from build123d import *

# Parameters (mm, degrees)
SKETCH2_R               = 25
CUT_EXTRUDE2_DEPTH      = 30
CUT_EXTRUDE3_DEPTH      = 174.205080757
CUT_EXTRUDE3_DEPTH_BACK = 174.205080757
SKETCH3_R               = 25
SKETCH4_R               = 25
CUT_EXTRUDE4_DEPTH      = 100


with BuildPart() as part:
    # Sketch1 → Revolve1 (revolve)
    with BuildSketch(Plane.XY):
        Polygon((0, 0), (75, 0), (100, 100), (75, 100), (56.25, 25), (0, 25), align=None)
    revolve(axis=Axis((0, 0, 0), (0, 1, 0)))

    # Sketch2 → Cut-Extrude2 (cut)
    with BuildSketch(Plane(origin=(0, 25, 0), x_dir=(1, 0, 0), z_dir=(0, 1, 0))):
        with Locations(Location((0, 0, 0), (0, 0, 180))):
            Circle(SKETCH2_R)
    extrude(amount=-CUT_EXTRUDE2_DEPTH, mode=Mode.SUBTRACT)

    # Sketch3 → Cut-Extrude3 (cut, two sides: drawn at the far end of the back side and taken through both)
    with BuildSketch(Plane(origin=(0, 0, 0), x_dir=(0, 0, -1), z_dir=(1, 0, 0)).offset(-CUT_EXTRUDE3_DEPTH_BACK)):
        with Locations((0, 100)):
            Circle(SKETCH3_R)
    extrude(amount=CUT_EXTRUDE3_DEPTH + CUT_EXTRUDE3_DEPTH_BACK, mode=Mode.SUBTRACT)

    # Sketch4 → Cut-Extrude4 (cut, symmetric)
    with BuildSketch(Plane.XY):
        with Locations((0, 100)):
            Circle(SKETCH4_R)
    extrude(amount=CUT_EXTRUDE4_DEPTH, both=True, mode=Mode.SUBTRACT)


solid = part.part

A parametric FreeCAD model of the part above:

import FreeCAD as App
import Part
import Sketcher


def add_polygon(sketch, points):
    """Adds a closed chain of lines whose ends are joined by coincident constraints."""
    first, n = sketch.GeometryCount, len(points)
    for a, b in zip(points, points[1:] + points[:1]):
        sketch.addGeometry(Part.LineSegment(App.Vector(*a, 0), App.Vector(*b, 0)), False)
    for i in range(n):
        sketch.addConstraint(Sketcher.Constraint("Coincident", first + i, 2, first + (i + 1) % n, 1))

doc = App.newDocument("Part")
body = doc.addObject("PartDesign::Body", "Body")

sketch1 = body.newObject("Sketcher::SketchObject", "Sketch")
sketch1.AttachmentSupport = (doc.getObject("XY_Plane"), [""])
sketch1.MapMode = "FlatFace"
add_polygon(sketch1, [(0, 0), (75, 0), (100, 100), (75, 100), (56, 25), (0, 25)])
sketch1.addConstraint([
    Sketcher.Constraint("Horizontal", 0),
    Sketcher.Constraint("Horizontal", 2),
    Sketcher.Constraint("Horizontal", 4),
    Sketcher.Constraint("Vertical", 5),
    Sketcher.Constraint("Coincident", 5, 2, -1, 1),
    Sketcher.Constraint("Parallel", 1, 3),
    Sketcher.Constraint("Vertical", 0, 2, 2, 2),
    Sketcher.Constraint("Equal", 2, 5),
    Sketcher.Constraint("DistanceX", 0, 1, 0, 2, 75.0),
    Sketcher.Constraint("DistanceX", 2, 2, 2, 1, 25.0),
    Sketcher.Constraint("DistanceY", -1, 1, 1, 2, 100.0),
])
revolution = body.newObject("PartDesign::Revolution", "Revolution")
revolution.Profile = sketch1
revolution.ReferenceAxis = (sketch1, ["V_Axis"])
revolution.Angle = 360

sketch2 = body.newObject("Sketcher::SketchObject", "Sketch001")
sketch2.AttachmentSupport = (doc.getObject("XZ_Plane"), [""])
sketch2.MapMode = "FlatFace"
sketch2.AttachmentOffset = App.Placement(App.Vector(0, 0, -25), App.Rotation())
sketch2.addGeometry(Part.Circle(App.Vector(0, 0, 0), App.Vector(0, 0, 1), 25), False)
sketch2.addConstraint([
    Sketcher.Constraint("Coincident", 0, 3, -1, 1),
    Sketcher.Constraint("Diameter", 0, 50.0),
])
pocket1 = body.newObject("PartDesign::Pocket", "Pocket")
pocket1.Profile = sketch2
pocket1.Length = 30
pocket1.Reversed = True

sketch3 = body.newObject("Sketcher::SketchObject", "Sketch002")
sketch3.AttachmentSupport = (doc.getObject("YZ_Plane"), [""])
sketch3.MapMode = "FlatFace"
sketch3.addGeometry(Part.Circle(App.Vector(100, 0, 0), App.Vector(0, 0, 1), 25), False)
sketch3.addConstraint([
    Sketcher.Constraint("PointOnObject", 0, 3, -1),
    Sketcher.Constraint("Diameter", 0, 50.0),
    Sketcher.Constraint("DistanceX", -1, 1, 0, 3, 100.0),
])
pocket2 = body.newObject("PartDesign::Pocket", "Pocket001")
pocket2.Profile = sketch3
pocket2.Type = "ThroughAll"
pocket2.Midplane = True

sketch4 = body.newObject("Sketcher::SketchObject", "Sketch003")
sketch4.AttachmentSupport = (doc.getObject("XY_Plane"), [""])
sketch4.MapMode = "FlatFace"
sketch4.addGeometry(Part.Circle(App.Vector(0, 100, 0), App.Vector(0, 0, 1), 25), False)
sketch4.addConstraint([
    Sketcher.Constraint("PointOnObject", 0, 3, -2),
    Sketcher.Constraint("Diameter", 0, 50.0),
    Sketcher.Constraint("DistanceY", -1, 1, 0, 3, 100.0),
])
pocket3 = body.newObject("PartDesign::Pocket", "Pocket002")
pocket3.Profile = sketch4
pocket3.Length = 200
pocket3.Midplane = True

doc.recompute()
